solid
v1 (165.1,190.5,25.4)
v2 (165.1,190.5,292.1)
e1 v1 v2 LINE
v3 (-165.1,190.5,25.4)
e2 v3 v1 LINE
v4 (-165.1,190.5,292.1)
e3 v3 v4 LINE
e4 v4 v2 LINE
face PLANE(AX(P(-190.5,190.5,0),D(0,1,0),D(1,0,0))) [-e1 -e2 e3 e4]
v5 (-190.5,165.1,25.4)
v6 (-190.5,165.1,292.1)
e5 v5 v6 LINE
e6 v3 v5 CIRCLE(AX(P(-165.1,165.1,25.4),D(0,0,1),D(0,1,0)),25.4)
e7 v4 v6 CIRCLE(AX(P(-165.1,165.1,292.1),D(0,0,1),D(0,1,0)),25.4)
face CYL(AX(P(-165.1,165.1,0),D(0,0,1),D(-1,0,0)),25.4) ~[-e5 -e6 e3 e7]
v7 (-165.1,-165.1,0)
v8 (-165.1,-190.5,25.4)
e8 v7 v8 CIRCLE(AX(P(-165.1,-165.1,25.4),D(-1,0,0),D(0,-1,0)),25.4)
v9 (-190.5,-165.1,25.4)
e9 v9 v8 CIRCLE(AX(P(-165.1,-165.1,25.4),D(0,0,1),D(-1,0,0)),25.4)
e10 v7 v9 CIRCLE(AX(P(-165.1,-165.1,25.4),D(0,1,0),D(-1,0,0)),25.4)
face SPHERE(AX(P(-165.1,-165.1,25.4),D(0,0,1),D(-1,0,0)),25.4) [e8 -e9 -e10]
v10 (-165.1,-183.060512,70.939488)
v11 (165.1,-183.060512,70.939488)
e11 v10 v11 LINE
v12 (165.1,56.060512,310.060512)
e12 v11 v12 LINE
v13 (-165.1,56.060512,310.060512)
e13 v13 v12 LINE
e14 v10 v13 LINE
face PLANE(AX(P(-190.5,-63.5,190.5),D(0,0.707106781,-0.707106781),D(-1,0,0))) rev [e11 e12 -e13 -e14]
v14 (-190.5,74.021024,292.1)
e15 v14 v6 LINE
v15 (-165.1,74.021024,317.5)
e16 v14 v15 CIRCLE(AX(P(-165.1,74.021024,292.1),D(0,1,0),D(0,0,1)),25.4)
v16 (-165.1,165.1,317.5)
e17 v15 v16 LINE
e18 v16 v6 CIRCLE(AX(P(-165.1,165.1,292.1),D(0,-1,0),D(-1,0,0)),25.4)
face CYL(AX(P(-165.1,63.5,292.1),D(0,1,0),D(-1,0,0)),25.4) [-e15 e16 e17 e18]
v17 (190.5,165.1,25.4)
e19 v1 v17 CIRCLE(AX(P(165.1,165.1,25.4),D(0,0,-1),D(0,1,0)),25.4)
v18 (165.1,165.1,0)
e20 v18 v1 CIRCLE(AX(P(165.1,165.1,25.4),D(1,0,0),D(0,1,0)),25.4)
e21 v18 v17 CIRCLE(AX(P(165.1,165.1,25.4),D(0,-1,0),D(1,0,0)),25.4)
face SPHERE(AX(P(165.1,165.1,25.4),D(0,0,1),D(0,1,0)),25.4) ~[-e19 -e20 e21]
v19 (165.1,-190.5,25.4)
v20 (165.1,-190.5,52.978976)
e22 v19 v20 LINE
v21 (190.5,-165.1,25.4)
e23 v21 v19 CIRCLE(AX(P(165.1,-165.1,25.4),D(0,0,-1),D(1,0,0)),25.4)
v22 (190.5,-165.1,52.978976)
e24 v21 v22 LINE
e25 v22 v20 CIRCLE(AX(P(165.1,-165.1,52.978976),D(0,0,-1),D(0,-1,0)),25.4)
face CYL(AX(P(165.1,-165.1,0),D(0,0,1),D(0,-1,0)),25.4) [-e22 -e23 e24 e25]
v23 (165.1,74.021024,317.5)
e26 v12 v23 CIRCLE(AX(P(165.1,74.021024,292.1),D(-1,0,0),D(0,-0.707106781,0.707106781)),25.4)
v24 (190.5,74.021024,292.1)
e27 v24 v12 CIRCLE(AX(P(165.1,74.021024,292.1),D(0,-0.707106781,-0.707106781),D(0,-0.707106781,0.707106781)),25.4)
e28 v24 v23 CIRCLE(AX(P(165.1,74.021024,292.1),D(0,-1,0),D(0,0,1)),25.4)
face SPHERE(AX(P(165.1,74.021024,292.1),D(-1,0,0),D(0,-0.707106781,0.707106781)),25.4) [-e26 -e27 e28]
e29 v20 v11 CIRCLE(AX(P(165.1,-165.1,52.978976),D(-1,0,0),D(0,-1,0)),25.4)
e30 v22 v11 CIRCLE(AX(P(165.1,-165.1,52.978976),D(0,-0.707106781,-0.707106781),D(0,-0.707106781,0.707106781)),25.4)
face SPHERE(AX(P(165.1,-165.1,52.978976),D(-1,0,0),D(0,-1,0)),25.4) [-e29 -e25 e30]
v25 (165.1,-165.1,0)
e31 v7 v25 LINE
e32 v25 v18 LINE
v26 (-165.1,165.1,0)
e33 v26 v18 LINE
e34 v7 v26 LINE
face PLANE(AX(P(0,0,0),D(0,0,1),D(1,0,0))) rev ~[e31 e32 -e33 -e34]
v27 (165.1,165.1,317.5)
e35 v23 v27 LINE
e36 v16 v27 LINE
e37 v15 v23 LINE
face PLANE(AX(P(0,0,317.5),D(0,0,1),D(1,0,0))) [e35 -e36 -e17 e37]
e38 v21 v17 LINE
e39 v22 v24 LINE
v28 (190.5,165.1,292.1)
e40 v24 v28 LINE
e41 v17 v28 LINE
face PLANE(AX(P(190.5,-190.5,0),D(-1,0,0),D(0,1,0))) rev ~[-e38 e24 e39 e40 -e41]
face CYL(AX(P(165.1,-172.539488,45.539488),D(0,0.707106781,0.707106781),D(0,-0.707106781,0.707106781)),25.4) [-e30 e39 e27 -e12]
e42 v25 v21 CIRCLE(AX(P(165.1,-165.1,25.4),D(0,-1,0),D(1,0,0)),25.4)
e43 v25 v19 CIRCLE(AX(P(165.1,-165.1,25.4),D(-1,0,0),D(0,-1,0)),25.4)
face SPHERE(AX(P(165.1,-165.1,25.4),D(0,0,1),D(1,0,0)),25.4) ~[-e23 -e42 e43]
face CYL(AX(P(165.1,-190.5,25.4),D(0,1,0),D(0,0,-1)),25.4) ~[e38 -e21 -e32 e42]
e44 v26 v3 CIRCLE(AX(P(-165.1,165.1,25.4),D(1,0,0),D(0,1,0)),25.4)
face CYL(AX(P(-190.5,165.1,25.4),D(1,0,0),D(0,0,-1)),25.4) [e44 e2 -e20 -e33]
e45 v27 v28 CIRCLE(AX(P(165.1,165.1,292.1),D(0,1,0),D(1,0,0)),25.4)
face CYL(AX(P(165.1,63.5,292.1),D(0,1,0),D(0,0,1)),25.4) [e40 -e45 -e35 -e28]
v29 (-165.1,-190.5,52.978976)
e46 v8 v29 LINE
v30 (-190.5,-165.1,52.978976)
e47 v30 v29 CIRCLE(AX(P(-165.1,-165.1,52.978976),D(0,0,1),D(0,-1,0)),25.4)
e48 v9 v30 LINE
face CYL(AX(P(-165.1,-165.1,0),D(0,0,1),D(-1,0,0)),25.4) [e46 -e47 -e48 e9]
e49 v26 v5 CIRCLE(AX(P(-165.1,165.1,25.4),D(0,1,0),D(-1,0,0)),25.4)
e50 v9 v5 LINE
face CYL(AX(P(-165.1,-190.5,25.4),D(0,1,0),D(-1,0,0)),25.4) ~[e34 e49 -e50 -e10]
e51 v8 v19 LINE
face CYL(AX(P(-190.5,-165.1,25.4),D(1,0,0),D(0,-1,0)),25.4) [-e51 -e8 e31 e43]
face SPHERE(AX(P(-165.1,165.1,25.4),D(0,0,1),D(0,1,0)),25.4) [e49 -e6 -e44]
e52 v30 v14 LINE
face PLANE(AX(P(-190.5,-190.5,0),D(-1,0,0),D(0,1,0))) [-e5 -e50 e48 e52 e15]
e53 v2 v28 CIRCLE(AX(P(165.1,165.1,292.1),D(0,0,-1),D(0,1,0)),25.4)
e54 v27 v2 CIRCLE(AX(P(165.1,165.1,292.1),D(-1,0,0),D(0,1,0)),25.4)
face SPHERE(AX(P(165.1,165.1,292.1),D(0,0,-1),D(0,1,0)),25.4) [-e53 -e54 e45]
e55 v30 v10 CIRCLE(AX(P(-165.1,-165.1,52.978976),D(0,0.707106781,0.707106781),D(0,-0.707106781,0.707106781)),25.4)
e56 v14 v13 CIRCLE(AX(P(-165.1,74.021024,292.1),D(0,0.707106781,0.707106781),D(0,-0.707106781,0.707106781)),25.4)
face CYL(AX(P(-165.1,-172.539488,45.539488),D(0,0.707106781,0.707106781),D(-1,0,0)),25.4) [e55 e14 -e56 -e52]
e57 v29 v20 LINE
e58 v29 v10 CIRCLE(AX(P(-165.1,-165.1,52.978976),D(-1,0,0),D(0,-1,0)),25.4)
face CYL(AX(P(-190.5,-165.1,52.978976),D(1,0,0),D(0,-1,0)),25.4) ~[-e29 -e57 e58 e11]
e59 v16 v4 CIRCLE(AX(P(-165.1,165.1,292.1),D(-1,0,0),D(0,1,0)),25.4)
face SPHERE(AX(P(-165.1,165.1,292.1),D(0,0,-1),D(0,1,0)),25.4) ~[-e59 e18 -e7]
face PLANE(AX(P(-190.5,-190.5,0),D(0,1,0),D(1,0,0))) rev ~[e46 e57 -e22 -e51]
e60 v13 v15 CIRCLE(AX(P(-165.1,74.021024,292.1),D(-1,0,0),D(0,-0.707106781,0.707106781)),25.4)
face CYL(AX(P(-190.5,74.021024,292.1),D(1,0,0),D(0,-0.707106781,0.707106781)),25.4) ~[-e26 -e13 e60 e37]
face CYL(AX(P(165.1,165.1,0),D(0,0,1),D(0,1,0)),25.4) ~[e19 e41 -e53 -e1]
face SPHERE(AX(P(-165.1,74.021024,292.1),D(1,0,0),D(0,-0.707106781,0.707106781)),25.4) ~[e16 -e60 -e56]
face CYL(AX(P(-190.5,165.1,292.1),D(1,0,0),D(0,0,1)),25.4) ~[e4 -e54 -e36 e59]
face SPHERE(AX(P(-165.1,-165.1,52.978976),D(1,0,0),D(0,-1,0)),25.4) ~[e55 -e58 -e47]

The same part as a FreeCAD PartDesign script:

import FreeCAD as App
import Part
import Sketcher
from FreeCAD import Vector
Q = App.Units.Quantity


def edges_at(feature, points):
    """Names of the edges that pass closest to the given points."""
    edges = feature.Shape.Edges
    near = lambda p: min(range(len(edges)), key=lambda i: edges[i].distToShape(Part.Vertex(*p))[0])
    return sorted({f"Edge{near(p) + 1}" for p in points})


def add_polygon(sketch, points):
    """Adds a closed chain of lines whose ends are joined by coincident constraints."""
    first, n = sketch.GeometryCount, len(points)
    for a, b in zip(points, points[1:] + points[:1]):
        sketch.addGeometry(Part.LineSegment(App.Vector(*a, 0), App.Vector(*b, 0)), False)
    for i in range(n):
        sketch.addConstraint(Sketcher.Constraint("Coincident", first + i, 2, first + (i + 1) % n, 1))

doc = App.newDocument("Part")
body = doc.addObject("PartDesign::Body", "Body")

# Sketch on XY plane
sketch1 = body.newObject("Sketcher::SketchObject", "Sketch")
sketch1.AttachmentSupport = (doc.getObject("XY_Plane"), [""])
sketch1.MapMode = "FlatFace"
add_polygon(sketch1, [(-190.5, 190.5), (-190.5, -190.5), (190.5, -190.5), (190.5, 190.5)])  # lines 0-3
sketch1.addConstraint([
    Sketcher.Constraint("Vertical", 0),
    Sketcher.Constraint("Horizontal", 1),
    Sketcher.Constraint("Vertical", 2),
    Sketcher.Constraint("Horizontal", 3),
    Sketcher.Constraint("Symmetric", 0, 2, 2, 2, -1, 1),
    Sketcher.Constraint("Equal", 3, 0),
    Sketcher.Constraint("DistanceX", 1, 1, 1, 2, Q("15 in")),
])
pad1 = body.newObject("PartDesign::Pad", "Pad")
pad1.Profile = sketch1
pad1.Length = Q("12.5 in")
doc.recompute()

chamfer = body.newObject("PartDesign::Chamfer", "Chamfer")
chamfer.Base = (pad1, edges_at(pad1, [(0, -190.5, 317.5)]))
chamfer.Size = Q("10 in")
doc.recompute()

fillet = body.newObject("PartDesign::Fillet", "Fillet")
fillet.Base = (chamfer, ["Edge1"])
fillet.UseAllEdges = True
fillet.Radius = Q("1 in")

doc.recompute()
